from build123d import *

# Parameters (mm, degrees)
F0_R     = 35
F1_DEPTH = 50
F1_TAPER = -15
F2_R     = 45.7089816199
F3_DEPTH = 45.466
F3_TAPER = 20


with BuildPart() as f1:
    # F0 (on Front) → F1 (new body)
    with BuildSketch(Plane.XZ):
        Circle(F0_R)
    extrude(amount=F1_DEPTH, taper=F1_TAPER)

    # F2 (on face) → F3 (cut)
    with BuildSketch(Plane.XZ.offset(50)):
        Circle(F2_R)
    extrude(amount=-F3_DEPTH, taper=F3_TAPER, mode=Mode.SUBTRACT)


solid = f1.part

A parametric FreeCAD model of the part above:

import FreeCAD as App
import Part
import Sketcher
from FreeCAD import Vector

doc = App.newDocument("Part")
body = doc.addObject("PartDesign::Body", "Body")

sketch1 = body.newObject("Sketcher::SketchObject", "Sketch")
sketch1.AttachmentSupport = (doc.getObject("XZ_Plane"), [""])
sketch1.MapMode = "FlatFace"
sketch1.addGeometry(Part.Circle(Vector(0, 0, 0), Vector(0, 0, 1), 35), False)
sketch1.addConstraint([
    Sketcher.Constraint("Coincident", 0, 3, -1, 1),
    Sketcher.Constraint("Diameter", 0, 70.0),
])
pad1 = body.newObject("PartDesign::Pad", "Pad")
pad1.Profile = sketch1
pad1.Length = 50
pad1.TaperAngle = 15

sketch2 = body.newObject("Sketcher::SketchObject", "Sketch001")
sketch2.AttachmentSupport = (doc.getObject("XZ_Plane"), [""])
sketch2.MapMode = "FlatFace"
sketch2.AttachmentOffset = App.Placement(Vector(0, 0, 50), App.Rotation())
sketch2.addGeometry(Part.Circle(Vector(0, 0, 0), Vector(0, 0, 1), 46), False)
sketch2.addConstraint([
    Sketcher.Constraint("Coincident", 0, 3, -1, 1),
    Sketcher.Constraint("Diameter", 0, 91.417963),
])
pocket1 = body.newObject("PartDesign::Pocket", "Pocket")
pocket1.Profile = sketch2
pocket1.Length = 45.466
pocket1.TaperAngle = -20

doc.recompute()
